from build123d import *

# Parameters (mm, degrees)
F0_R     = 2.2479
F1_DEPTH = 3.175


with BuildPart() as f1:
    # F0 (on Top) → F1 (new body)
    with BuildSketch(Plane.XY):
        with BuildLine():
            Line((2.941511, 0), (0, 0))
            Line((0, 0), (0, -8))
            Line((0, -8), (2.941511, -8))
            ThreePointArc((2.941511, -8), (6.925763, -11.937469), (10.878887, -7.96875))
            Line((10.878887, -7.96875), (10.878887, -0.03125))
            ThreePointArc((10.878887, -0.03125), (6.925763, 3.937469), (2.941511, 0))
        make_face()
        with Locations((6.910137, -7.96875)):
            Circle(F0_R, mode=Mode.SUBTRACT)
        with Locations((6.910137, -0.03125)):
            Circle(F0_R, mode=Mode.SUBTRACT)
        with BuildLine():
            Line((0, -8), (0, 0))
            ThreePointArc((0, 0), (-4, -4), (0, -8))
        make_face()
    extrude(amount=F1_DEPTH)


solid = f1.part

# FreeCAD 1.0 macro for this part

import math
import FreeCAD as App
import Part
import Sketcher
Q = App.Units.Quantity

doc = App.newDocument("Part")
body = doc.addObject("PartDesign::Body", "Body")

sketch1 = body.newObject("Sketcher::SketchObject", "Sketch")
sketch1.AttachmentSupport = (doc.getObject("XY_Plane"), [""])
sketch1.MapMode = "FlatFace"
sketch1.addGeometry([
    Part.LineSegment(App.Vector(2.941511, 0, 0), App.Vector(0, 0, 0)),
    Part.ArcOfCircle(Part.Circle(App.Vector(0, -4, 0), App.Vector(0, 0, 1), 4), math.radians(90), math.radians(270)),
    Part.LineSegment(App.Vector(0, -8, 0), App.Vector(2.941511, -8, 0)),
    Part.ArcOfCircle(Part.Circle(App.Vector(6.910137, -7.96875, 0), App.Vector(0, 0, 1), 3.96875), math.radians(-179.548851), math.radians(0.000004)),
    Part.LineSegment(App.Vector(10.878887, -7.96875, 0), App.Vector(10.878887, -0.03125, 0)),
    Part.ArcOfCircle(Part.Circle(App.Vector(6.910137, -0.03125, 0), App.Vector(0, 0, 1), 3.96875), math.radians(-0.000004), math.radians(179.548851)),
    Part.Circle(App.Vector(6.910137, -7.96875, 0), App.Vector(0, 0, 1), 2.2479),
    Part.Circle(App.Vector(6.910137, -0.03125, 0), App.Vector(0, 0, 1), 2.2479),
], False)
sketch1.addConstraint([
    Sketcher.Constraint("Tangent", 0, 2, 1, 1),
    Sketcher.Constraint("Tangent", 1, 2, 2, 1),
    Sketcher.Constraint("Coincident", 2, 2, 3, 1),
    Sketcher.Constraint("Tangent", 3, 2, 4, 1),
    Sketcher.Constraint("Tangent", 4, 2, 5, 1),
    Sketcher.Constraint("Coincident", 5, 2, 0, 1),
    Sketcher.Constraint("Horizontal", 0),
    Sketcher.Constraint("Horizontal", 2),
    Sketcher.Constraint("Vertical", 4),
    Sketcher.Constraint("Coincident", 0, 2, -1, 1),
    Sketcher.Constraint("Coincident", 6, 3, 3, 3),
    Sketcher.Constraint("Coincident", 7, 3, 5, 3),
    Sketcher.Constraint("Equal", 3, 5),
    Sketcher.Constraint("Equal", 6, 7),
    Sketcher.Constraint("Vertical", 2, 2, 5, 2),
    Sketcher.Constraint("Diameter", 6, Q("0.177 in")),
    Sketcher.Constraint("Radius", 3, Q("0.15625 in")),
    Sketcher.Constraint("DistanceY", 4, 1, 4, 2, Q("0.3125 in")),
    Sketcher.Constraint("Radius", 1, Q("4 mm")),
    Sketcher.Constraint("DistanceX", 0, 2, 0, 1, Q("2.941511 mm")),
])
pad1 = body.newObject("PartDesign::Pad", "Pad")
pad1.Profile = sketch1
pad1.Length = Q("0.125 in")

doc.recompute()
